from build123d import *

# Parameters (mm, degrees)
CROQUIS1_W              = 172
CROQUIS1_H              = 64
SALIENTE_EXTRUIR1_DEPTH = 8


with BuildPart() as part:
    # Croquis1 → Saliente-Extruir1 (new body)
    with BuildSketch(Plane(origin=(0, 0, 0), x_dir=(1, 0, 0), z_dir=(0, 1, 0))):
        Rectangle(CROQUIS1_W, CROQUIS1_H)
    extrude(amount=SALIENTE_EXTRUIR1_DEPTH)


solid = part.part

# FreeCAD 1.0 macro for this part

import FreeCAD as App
import Part
import Sketcher

V = App.Vector
Q = App.Units.Quantity


def add_polygon(sketch, points):
    """Adds a closed chain of lines whose ends are joined by coincident constraints."""
    first, n = sketch.GeometryCount, len(points)
    for a, b in zip(points, points[1:] + points[:1]):
        sketch.addGeometry(Part.LineSegment(App.Vector(*a, 0), App.Vector(*b, 0)), False)
    for i in range(n):
        sketch.addConstraint(Sketcher.Constraint("Coincident", first + i, 2, first + (i + 1) % n, 1))

doc = App.newDocument("Part")
body = doc.addObject("PartDesign::Body", "Body")

# Sketch on XZ plane
sketch1 = doc.addObject("Sketcher::SketchObject", "Sketch")
body.addObject(sketch1)
sketch1.AttachmentSupport = (doc.XZ_Plane, [""])
sketch1.MapMode = "FlatFace"
add_polygon(sketch1, [(-86, -32), (-86, 32), (86, 32), (86, -32)])  # lines 0-3
sketch1.addConstraint([
    Sketcher.Constraint("Vertical", 0),
    Sketcher.Constraint("Horizontal", 1),
    Sketcher.Constraint("Vertical", 2),
    Sketcher.Constraint("Horizontal", 3),
    Sketcher.Constraint("Symmetric", 0, 2, 2, 2, -1, 1),
    Sketcher.Constraint("DistanceX", 1, 1, 1, 2, Q("172 mm")),
    Sketcher.Constraint("DistanceY", 0, 1, 0, 2, Q("64 mm")),
])
pad1 = doc.addObject("PartDesign::Pad", "Pad")
body.addObject(pad1)
pad1.Profile = sketch1
pad1.Length = 8
pad1.Reversed = True

doc.recompute()
